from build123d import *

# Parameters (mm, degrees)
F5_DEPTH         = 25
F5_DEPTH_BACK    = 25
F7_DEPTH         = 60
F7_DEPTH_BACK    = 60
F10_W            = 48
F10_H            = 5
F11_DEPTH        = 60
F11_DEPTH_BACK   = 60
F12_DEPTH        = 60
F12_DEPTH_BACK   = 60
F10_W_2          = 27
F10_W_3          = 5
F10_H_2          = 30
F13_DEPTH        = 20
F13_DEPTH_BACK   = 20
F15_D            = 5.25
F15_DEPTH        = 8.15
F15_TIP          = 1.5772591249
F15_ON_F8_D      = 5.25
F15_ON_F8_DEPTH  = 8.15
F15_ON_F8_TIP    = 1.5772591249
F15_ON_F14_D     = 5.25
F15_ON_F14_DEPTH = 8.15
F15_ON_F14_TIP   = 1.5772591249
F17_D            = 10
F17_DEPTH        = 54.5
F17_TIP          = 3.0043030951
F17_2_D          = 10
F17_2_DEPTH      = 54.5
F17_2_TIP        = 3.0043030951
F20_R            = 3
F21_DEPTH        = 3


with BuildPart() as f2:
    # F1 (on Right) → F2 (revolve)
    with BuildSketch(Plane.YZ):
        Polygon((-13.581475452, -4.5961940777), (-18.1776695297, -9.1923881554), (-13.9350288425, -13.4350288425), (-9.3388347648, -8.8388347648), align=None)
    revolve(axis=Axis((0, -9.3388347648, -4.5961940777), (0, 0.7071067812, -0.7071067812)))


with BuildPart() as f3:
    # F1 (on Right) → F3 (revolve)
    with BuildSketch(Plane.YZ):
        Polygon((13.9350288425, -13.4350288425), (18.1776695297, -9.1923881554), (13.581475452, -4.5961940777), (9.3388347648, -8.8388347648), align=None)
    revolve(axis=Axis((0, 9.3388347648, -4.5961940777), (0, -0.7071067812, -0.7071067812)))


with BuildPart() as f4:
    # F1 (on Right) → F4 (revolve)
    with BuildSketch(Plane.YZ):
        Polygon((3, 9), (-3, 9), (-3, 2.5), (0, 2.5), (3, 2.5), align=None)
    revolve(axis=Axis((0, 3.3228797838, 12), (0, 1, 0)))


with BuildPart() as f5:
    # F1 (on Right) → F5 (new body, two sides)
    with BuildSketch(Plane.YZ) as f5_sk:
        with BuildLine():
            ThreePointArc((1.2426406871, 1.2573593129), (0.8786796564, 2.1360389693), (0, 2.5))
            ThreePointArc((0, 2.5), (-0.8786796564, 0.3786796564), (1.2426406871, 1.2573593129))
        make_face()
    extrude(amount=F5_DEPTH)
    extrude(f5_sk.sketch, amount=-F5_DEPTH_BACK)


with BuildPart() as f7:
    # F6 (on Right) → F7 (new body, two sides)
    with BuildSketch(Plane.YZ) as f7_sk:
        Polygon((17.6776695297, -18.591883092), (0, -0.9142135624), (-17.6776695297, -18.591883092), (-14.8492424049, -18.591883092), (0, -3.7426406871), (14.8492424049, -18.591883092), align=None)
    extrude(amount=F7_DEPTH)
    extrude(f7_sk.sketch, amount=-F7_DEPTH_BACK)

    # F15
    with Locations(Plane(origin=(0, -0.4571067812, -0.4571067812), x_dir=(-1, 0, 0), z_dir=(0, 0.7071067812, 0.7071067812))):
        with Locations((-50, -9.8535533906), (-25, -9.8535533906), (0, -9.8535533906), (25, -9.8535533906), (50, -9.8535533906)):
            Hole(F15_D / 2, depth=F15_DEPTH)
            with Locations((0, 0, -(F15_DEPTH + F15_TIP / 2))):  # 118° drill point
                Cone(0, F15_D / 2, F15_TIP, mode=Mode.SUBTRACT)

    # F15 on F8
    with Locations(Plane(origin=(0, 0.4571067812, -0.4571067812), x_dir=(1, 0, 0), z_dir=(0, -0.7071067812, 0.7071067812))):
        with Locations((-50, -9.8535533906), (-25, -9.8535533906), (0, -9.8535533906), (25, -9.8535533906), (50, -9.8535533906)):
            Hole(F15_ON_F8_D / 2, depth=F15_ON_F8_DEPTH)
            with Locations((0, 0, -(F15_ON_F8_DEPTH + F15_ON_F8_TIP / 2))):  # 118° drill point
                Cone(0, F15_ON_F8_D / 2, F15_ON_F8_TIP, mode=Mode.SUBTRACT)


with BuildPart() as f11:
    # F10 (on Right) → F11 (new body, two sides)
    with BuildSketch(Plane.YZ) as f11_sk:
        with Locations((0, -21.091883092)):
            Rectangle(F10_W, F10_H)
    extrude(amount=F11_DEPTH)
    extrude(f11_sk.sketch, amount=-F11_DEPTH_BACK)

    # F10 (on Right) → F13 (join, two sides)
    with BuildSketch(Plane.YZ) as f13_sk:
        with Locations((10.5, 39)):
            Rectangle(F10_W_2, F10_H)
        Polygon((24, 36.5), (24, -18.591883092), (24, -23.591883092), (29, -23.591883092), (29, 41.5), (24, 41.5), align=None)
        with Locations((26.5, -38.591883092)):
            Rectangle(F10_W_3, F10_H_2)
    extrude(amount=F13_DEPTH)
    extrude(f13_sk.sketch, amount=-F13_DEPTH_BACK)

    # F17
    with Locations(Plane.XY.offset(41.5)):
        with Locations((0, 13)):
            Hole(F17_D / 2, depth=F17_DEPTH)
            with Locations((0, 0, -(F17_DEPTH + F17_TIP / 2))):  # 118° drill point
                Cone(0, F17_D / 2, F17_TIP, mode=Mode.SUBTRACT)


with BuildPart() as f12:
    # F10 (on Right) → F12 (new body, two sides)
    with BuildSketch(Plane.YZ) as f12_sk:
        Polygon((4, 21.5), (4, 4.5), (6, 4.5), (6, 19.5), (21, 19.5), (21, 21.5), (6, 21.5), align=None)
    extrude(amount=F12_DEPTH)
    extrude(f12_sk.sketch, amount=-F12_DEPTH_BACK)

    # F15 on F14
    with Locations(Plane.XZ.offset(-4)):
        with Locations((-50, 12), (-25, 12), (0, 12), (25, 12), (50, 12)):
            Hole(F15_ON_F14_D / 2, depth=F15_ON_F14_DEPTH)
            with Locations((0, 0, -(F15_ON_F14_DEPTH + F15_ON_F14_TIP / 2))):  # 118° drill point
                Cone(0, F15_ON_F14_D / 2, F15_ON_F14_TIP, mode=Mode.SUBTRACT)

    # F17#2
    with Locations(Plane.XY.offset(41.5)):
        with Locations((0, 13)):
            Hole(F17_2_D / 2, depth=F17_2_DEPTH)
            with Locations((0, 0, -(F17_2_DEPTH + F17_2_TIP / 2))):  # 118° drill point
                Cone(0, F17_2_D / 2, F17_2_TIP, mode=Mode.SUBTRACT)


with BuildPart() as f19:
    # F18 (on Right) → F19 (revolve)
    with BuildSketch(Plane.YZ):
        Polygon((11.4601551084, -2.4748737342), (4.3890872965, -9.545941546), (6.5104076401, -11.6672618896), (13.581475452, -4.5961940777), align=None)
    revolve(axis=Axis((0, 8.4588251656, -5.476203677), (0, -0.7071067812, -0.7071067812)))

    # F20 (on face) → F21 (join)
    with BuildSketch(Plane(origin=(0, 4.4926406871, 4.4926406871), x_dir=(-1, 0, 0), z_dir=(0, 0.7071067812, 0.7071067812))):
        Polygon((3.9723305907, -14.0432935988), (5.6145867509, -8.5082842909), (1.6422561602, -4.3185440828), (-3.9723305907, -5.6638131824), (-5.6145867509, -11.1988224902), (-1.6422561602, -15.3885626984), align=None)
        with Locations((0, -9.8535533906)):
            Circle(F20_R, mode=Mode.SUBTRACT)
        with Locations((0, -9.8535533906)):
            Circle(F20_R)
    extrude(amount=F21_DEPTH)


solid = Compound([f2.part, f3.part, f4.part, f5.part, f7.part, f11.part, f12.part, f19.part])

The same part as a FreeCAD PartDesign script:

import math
import FreeCAD as App
import Part
import Sketcher

V = App.Vector
Q = App.Units.Quantity

doc = App.newDocument("Part")
params = doc.addObject("Spreadsheet::Sheet", "Params")
for row, (alias, value) in enumerate([
    ("sketch1_length", "6 mm"),
    ("sketch1_length2", "6.5 mm"),
    ("revolution_angle", "360 deg"),
    ("sketch2_length", "6 mm"),
    ("sketch2_length2", "6.5 mm"),
    ("revolution2_angle", "360 deg"),
    ("sketch3_width", "6 mm"),
    ("sketch3_height", "6.5 mm"),
    ("revolution3_angle", "360 deg"),
    ("pad1_length", "25 mm"),
    ("pad1_length2", "25 mm"),
    ("sketch5_length", "25 mm"),
    ("sketch5_length2", "21 mm"),
    ("pad2_length", "60 mm"),
    ("pad2_length2", "60 mm"),
    ("sketch6_diameter", "5.25 mm"),
    ("hole_diameter", "5.25 mm"),
    ("hole_depth", "8.15 mm"),
    ("sketch7_diameter", "5.25 mm"),
    ("hole2_diameter", "5.25 mm"),
    ("hole2_depth", "8.15 mm"),
    ("sketch8_width", "48 mm"),
    ("sketch8_height", "5 mm"),
    ("pad3_length", "60 mm"),
    ("pad3_length2", "60 mm"),
    ("sketch9_width", "27 mm"),
    ("sketch9_width2", "5 mm"),
    ("pad4_length", "20 mm"),
    ("pad4_length2", "20 mm"),
    ("sketch10_diameter", "10 mm"),
    ("hole3_diameter", "10 mm"),
    ("hole3_depth", "54.5 mm"),
    ("sketch11_width", "2 mm"),
    ("sketch11_width2", "15 mm"),
    ("pad5_length", "60 mm"),
    ("pad5_length2", "60 mm"),
    ("sketch12_diameter", "5.25 mm"),
    ("hole4_diameter", "5.25 mm"),
    ("hole4_depth", "8.15 mm"),
    ("sketch13_diameter", "10 mm"),
    ("hole5_diameter", "10 mm"),
    ("hole5_depth", "54.5 mm"),
    ("sketch14_length", "10 mm"),
    ("sketch14_length2", "3 mm"),
    ("revolution4_angle", "360 deg"),
    ("pad6_length", "3 mm"),
], start=1):
    params.set(f"A{row}", alias)
    params.set(f"B{row}", "=" + value)
    params.setAlias(f"B{row}", alias)

body = doc.addObject("PartDesign::Body", "Body")

sketch1 = body.newObject("Sketcher::SketchObject", "Sketch")
sketch1.AttachmentSupport = (doc.getObject("YZ_Plane"), [""])
sketch1.MapMode = "FlatFace"
sketch1.addGeometry([
    Part.LineSegment(V(-14, -5, 0), V(-18, -9, 0)),
    Part.LineSegment(V(-18, -9, 0), V(-14, -13, 0)),
    Part.LineSegment(V(-14, -13, 0), V(-9, -9, 0)),
    Part.LineSegment(V(-9, -9, 0), V(-14, -5, 0)),
], False)
sketch1.addGeometry(Part.LineSegment(V(-11, -2, 0), V(-7, -7, 0)), True)
sketch1.addConstraint([
    Sketcher.Constraint("Coincident", 0, 2, 1, 1),
    Sketcher.Constraint("Coincident", 1, 2, 2, 1),
    Sketcher.Constraint("Coincident", 2, 2, 3, 1),
    Sketcher.Constraint("Coincident", 3, 2, 0, 1),
    Sketcher.Constraint("Perpendicular", 0, 1),
    Sketcher.Constraint("Perpendicular", 1, 2),
    Sketcher.Constraint("Perpendicular", 2, 3),
    Sketcher.Constraint("Parallel", 3, 4),
    Sketcher.Constraint("Equal", 3, 4),
    Sketcher.Constraint("Angle", 0, Q("-135 deg")),
    Sketcher.Constraint("Distance", 1, Q("6 mm")),
    Sketcher.Constraint("Distance", 0, Q("6.5 mm")),
    Sketcher.Constraint("DistanceX", 0, 2, -1, 1, Q("18.17767 mm")),
    Sketcher.Constraint("DistanceY", 0, 2, -1, 1, Q("9.192388 mm")),
    Sketcher.Constraint("DistanceX", 3, 2, 4, 1, Q("2.12132 mm")),
    Sketcher.Constraint("DistanceY", 3, 2, 4, 1, Q("2.12132 mm")),
])
sketch1.setExpression("Constraints[10]", "Params.sketch1_length")
sketch1.setExpression("Constraints[11]", "Params.sketch1_length2")
revolution = body.newObject("PartDesign::Revolution", "Revolution")
revolution.Profile = sketch1
revolution.ReferenceAxis = (sketch1, ["Axis0"])
revolution.setExpression("Angle", "Params.revolution_angle")
body2 = doc.addObject("PartDesign::Body", "Body001")

sketch2 = body2.newObject("Sketcher::SketchObject", "Sketch001")
sketch2.AttachmentSupport = (doc.getObject("YZ_Plane001"), [""])
sketch2.MapMode = "FlatFace"
sketch2.addGeometry([
    Part.LineSegment(V(14, -13, 0), V(18, -9, 0)),
    Part.LineSegment(V(18, -9, 0), V(14, -5, 0)),
    Part.LineSegment(V(14, -5, 0), V(9, -9, 0)),
    Part.LineSegment(V(9, -9, 0), V(14, -13, 0)),
], False)
sketch2.addGeometry(Part.LineSegment(V(11, -2, 0), V(7, -7, 0)), True)
sketch2.addConstraint([
    Sketcher.Constraint("Coincident", 0, 2, 1, 1),
    Sketcher.Constraint("Coincident", 1, 2, 2, 1),
    Sketcher.Constraint("Coincident", 2, 2, 3, 1),
    Sketcher.Constraint("Coincident", 3, 2, 0, 1),
    Sketcher.Constraint("Perpendicular", 0, 1),
    Sketcher.Constraint("Perpendicular", 1, 2),
    Sketcher.Constraint("Perpendicular", 2, 3),
    Sketcher.Constraint("Perpendicular", 3, 4),
    Sketcher.Constraint("Equal", 2, 4),
    Sketcher.Constraint("Angle", 0, Q("45 deg")),
    Sketcher.Constraint("Distance", 0, Q("6 mm")),
    Sketcher.Constraint("Distance", 1, Q("6.5 mm")),
    Sketcher.Constraint("DistanceX", -1, 1, 0, 2, Q("18.17767 mm")),
    Sketcher.Constraint("DistanceY", 0, 2, -1, 1, Q("9.192388 mm")),
    Sketcher.Constraint("DistanceX", 4, 1, 1, 2, Q("2.12132 mm")),
    Sketcher.Constraint("DistanceY", 1, 2, 4, 1, Q("2.12132 mm")),
])
sketch2.setExpression("Constraints[10]", "Params.sketch2_length")
sketch2.setExpression("Constraints[11]", "Params.sketch2_length2")
revolution2 = body2.newObject("PartDesign::Revolution", "Revolution001")
revolution2.Profile = sketch2
revolution2.ReferenceAxis = (sketch2, ["Axis0"])
revolution2.setExpression("Angle", "Params.revolution2_angle")
body3 = doc.addObject("PartDesign::Body", "Body002")

sketch3 = body3.newObject("Sketcher::SketchObject", "Sketch002")
sketch3.AttachmentSupport = (doc.getObject("YZ_Plane002"), [""])
sketch3.MapMode = "FlatFace"
sketch3.addGeometry([
    Part.LineSegment(V(3, 9, 0), V(-3, 9, 0)),
    Part.LineSegment(V(-3, 9, 0), V(-3, 2, 0)),
    Part.LineSegment(V(-3, 2, 0), V(3, 2, 0)),
    Part.LineSegment(V(3, 2, 0), V(3, 9, 0)),
], False)
sketch3.addGeometry(Part.LineSegment(V(-3, 12, 0), V(3, 12, 0)), True)
sketch3.addConstraint([
    Sketcher.Constraint("Coincident", 0, 2, 1, 1),
    Sketcher.Constraint("Coincident", 1, 2, 2, 1),
    Sketcher.Constraint("Coincident", 2, 2, 3, 1),
    Sketcher.Constraint("Coincident", 3, 2, 0, 1),
    Sketcher.Constraint("Horizontal", 0),
    Sketcher.Constraint("Vertical", 1),
    Sketcher.Constraint("Horizontal", 2),
    Sketcher.Constraint("Vertical", 3),
    Sketcher.Constraint("Horizontal", 4),
    Sketcher.Constraint("Vertical", 1, 2, 4, 1),
    Sketcher.Constraint("Vertical", 3, 2, 4, 2),
    Sketcher.Constraint("DistanceX", 0, 2, 0, 1, Q("6 mm")),
    Sketcher.Constraint("DistanceY", 1, 2, 1, 1, Q("6.5 mm")),
    Sketcher.Constraint("DistanceX", 0, 2, -1, 1, Q("3 mm")),
    Sketcher.Constraint("DistanceY", -1, 1, 0, 2, Q("9 mm")),
    Sketcher.Constraint("DistanceY", -1, 1, 4, 1, Q("12 mm")),
])
sketch3.setExpression("Constraints[11]", "Params.sketch3_width")
sketch3.setExpression("Constraints[12]", "Params.sketch3_height")
revolution3 = body3.newObject("PartDesign::Revolution", "Revolution002")
revolution3.Profile = sketch3
revolution3.ReferenceAxis = (sketch3, ["Axis0"])
revolution3.setExpression("Angle", "Params.revolution3_angle")
body4 = doc.addObject("PartDesign::Body", "Body003")

sketch4 = body4.newObject("Sketcher::SketchObject", "Sketch003")
sketch4.AttachmentSupport = (doc.getObject("YZ_Plane003"), [""])
sketch4.MapMode = "FlatFace"
sketch4.addGeometry([
    Part.ArcOfCircle(Part.Circle(V(0, 1.3, 0), V(0, 0, 1), 1.2), math.radians(0), math.radians(90)),
    Part.ArcOfCircle(Part.Circle(V(0, 1.3, 0), V(0, 0, 1), 1.2), math.radians(90), math.radians(360)),
], False)
sketch4.addConstraint([
    Sketcher.Constraint("Tangent", 0, 1, 1, 2),
    Sketcher.Constraint("Coincident", 1, 1, 0, 2),
    Sketcher.Constraint("PointOnObject", 0, 3, -2),
    Sketcher.Constraint("PointOnObject", 1, 1, -2),
    Sketcher.Constraint("Horizontal", 1, 3, 0, 1),
    Sketcher.Constraint("DistanceY", -1, 1, 1, 1, Q("2.5 mm")),
    Sketcher.Constraint("Radius", 0, Q("1.242641 mm")),
])
pad1 = body4.newObject("PartDesign::Pad", "Pad")
pad1.Profile = sketch4
pad1.Type = "TwoLengths"
pad1.setExpression("Length", "Params.pad1_length")
pad1.setExpression("Length2", "Params.pad1_length2")
body5 = doc.addObject("PartDesign::Body", "Body004")

sketch5 = body5.newObject("Sketcher::SketchObject", "Sketch004")
sketch5.AttachmentSupport = (doc.getObject("YZ_Plane004"), [""])
sketch5.MapMode = "FlatFace"
sketch5.addGeometry([
    Part.LineSegment(V(17.7, -18.6, 0), V(0, -0.9, 0)),
    Part.LineSegment(V(0, -0.9, 0), V(-17.7, -18.6, 0)),
    Part.LineSegment(V(-17.7, -18.6, 0), V(-14.8, -18.6, 0)),
    Part.LineSegment(V(-14.8, -18.6, 0), V(0, -3.7, 0)),
    Part.LineSegment(V(0, -3.7, 0), V(14.8, -18.6, 0)),
    Part.LineSegment(V(14.8, -18.6, 0), V(17.7, -18.6, 0)),
], False)
sketch5.addConstraint([
    Sketcher.Constraint("Coincident", 0, 2, 1, 1),
    Sketcher.Constraint("Coincident", 1, 2, 2, 1),
    Sketcher.Constraint("Coincident", 2, 2, 3, 1),
    Sketcher.Constraint("Coincident", 3, 2, 4, 1),
    Sketcher.Constraint("Coincident", 4, 2, 5, 1),
    Sketcher.Constraint("Coincident", 5, 2, 0, 1),
    Sketcher.Constraint("Horizontal", 2),
    Sketcher.Constraint("Horizontal", 5),
    Sketcher.Constraint("Symmetric", 2, 2, 4, 2, -2),
    Sketcher.Constraint("PointOnObject", 0, 2, -2),
    Sketcher.Constraint("PointOnObject", 3, 2, -2),
    Sketcher.Constraint("Perpendicular", 0, 1),
    Sketcher.Constraint("Parallel", 1, 3),
    Sketcher.Constraint("Perpendicular", 3, 4),
    Sketcher.Constraint("Distance", 0, Q("25 mm")),
    Sketcher.Constraint("Distance", 3, Q("21 mm")),
    Sketcher.Constraint("DistanceY", 3, 2, -1, 1, Q("3.742641 mm")),
])
sketch5.setExpression("Constraints[14]", "Params.sketch5_length")
sketch5.setExpression("Constraints[15]", "Params.sketch5_length2")
pad2 = body5.newObject("PartDesign::Pad", "Pad001")
pad2.Profile = sketch5
pad2.Type = "TwoLengths"
pad2.setExpression("Length", "Params.pad2_length")
pad2.setExpression("Length2", "Params.pad2_length2")

sketch6 = body5.newObject("Sketcher::SketchObject", "Sketch005")
sketch6.Placement = App.Placement(V(0, -0.457107, -0.457107), App.Rotation(V(-1, 0, 0), V(0, -0.707106781, 0.707106781), V(0, 0.707106781, 0.707106781), "ZXY"))
sketch6.addGeometry([
    Part.Circle(V(-50, -9.9, 0), V(0, 0, 1), 2.6),
    Part.Circle(V(-25, -9.9, 0), V(0, 0, 1), 2.6),
    Part.Circle(V(0, -9.9, 0), V(0, 0, 1), 2.6),
    Part.Circle(V(25, -9.9, 0), V(0, 0, 1), 2.6),
    Part.Circle(V(50, -9.9, 0), V(0, 0, 1), 2.6),
], False)
sketch6.addConstraint([
    Sketcher.Constraint("Equal", 0, 1),
    Sketcher.Constraint("Equal", 1, 2),
    Sketcher.Constraint("Equal", 2, 3),
    Sketcher.Constraint("Equal", 3, 4),
    Sketcher.Constraint("Symmetric", 1, 3, 3, 3, -2),
    Sketcher.Constraint("Symmetric", 0, 3, 4, 3, -2),
    Sketcher.Constraint("PointOnObject", 2, 3, -2),
    Sketcher.Constraint("Horizontal", 0, 3, 1, 3),
    Sketcher.Constraint("Horizontal", 1, 3, 2, 3),
    Sketcher.Constraint("Diameter", 0, Q("5.25 mm")),
    Sketcher.Constraint("DistanceX", 0, 3, -1, 1, Q("50 mm")),
    Sketcher.Constraint("DistanceX", 1, 3, -1, 1, Q("25 mm")),
    Sketcher.Constraint("DistanceY", 0, 3, -1, 1, Q("9.853553 mm")),
])
sketch6.setExpression("Constraints[9]", "Params.sketch6_diameter")
doc.recompute()
hole = body5.newObject("PartDesign::Hole", "Hole")
hole.Profile = sketch6
hole.ThreadType = "None"
hole.setExpression("Diameter", "Params.hole_diameter")
hole.DepthType = "Dimension"
hole.setExpression("Depth", "Params.hole_depth")
hole.DrillPoint = "Angled"
hole.DrillPointAngle = 118

sketch7 = body5.newObject("Sketcher::SketchObject", "Sketch006")
sketch7.Placement = App.Placement(V(0, 0.457107, -0.457107), App.Rotation(V(1, 0, 0), V(0, 0.707106781, 0.707106781), V(0, -0.707106781, 0.707106781), "ZXY"))
sketch7.addGeometry([
    Part.Circle(V(-50, -9.9, 0), V(0, 0, 1), 2.6),
    Part.Circle(V(-25, -9.9, 0), V(0, 0, 1), 2.6),
    Part.Circle(V(0, -9.9, 0), V(0, 0, 1), 2.6),
    Part.Circle(V(25, -9.9, 0), V(0, 0, 1), 2.6),
    Part.Circle(V(50, -9.9, 0), V(0, 0, 1), 2.6),
], False)
sketch7.addConstraint([
    Sketcher.Constraint("Equal", 0, 1),
    Sketcher.Constraint("Equal", 1, 2),
    Sketcher.Constraint("Equal", 2, 3),
    Sketcher.Constraint("Equal", 3, 4),
    Sketcher.Constraint("Symmetric", 1, 3, 3, 3, -2),
    Sketcher.Constraint("Symmetric", 0, 3, 4, 3, -2),
    Sketcher.Constraint("PointOnObject", 2, 3, -2),
    Sketcher.Constraint("Horizontal", 0, 3, 1, 3),
    Sketcher.Constraint("Horizontal", 1, 3, 2, 3),
    Sketcher.Constraint("Diameter", 0, Q("5.25 mm")),
    Sketcher.Constraint("DistanceX", 0, 3, -1, 1, Q("50 mm")),
    Sketcher.Constraint("DistanceX", 1, 3, -1, 1, Q("25 mm")),
    Sketcher.Constraint("DistanceY", 0, 3, -1, 1, Q("9.853553 mm")),
])
sketch7.setExpression("Constraints[9]", "Params.sketch7_diameter")
doc.recompute()
hole2 = body5.newObject("PartDesign::Hole", "Hole001")
hole2.Profile = sketch7
hole2.ThreadType = "None"
hole2.setExpression("Diameter", "Params.hole2_diameter")
hole2.DepthType = "Dimension"
hole2.setExpression("Depth", "Params.hole2_depth")
hole2.DrillPoint = "Angled"
hole2.DrillPointAngle = 118
body6 = doc.addObject("PartDesign::Body", "Body005")

sketch8 = body6.newObject("Sketcher::SketchObject", "Sketch007")
sketch8.AttachmentSupport = (doc.getObject("YZ_Plane005"), [""])
sketch8.MapMode = "FlatFace"
sketch8.addGeometry([
    Part.LineSegment(V(-24, -19, 0), V(-24, -24, 0)),
    Part.LineSegment(V(-24, -24, 0), V(24, -24, 0)),
    Part.LineSegment(V(24, -24, 0), V(24, -19, 0)),
    Part.LineSegment(V(24, -19, 0), V(-24, -19, 0)),
], False)
sketch8.addConstraint([
    Sketcher.Constraint("Coincident", 0, 2, 1, 1),
    Sketcher.Constraint("Coincident", 1, 2, 2, 1),
    Sketcher.Constraint("Coincident", 2, 2, 3, 1),
    Sketcher.Constraint("Coincident", 3, 2, 0, 1),
    Sketcher.Constraint("Vertical", 0),
    Sketcher.Constraint("Horizontal", 1),
    Sketcher.Constraint("Vertical", 2),
    Sketcher.Constraint("Horizontal", 3),
    Sketcher.Constraint("DistanceX", 1, 1, 1, 2, Q("48 mm")),
    Sketcher.Constraint("DistanceY", 0, 2, 0, 1, Q("5 mm")),
    Sketcher.Constraint("DistanceX", 0, 2, -1, 1, Q("24 mm")),
    Sketcher.Constraint("DistanceY", 0, 2, -1, 1, Q("23.591883 mm")),
])
sketch8.setExpression("Constraints[8]", "Params.sketch8_width")
sketch8.setExpression("Constraints[9]", "Params.sketch8_height")
pad3 = body6.newObject("PartDesign::Pad", "Pad002")
pad3.Profile = sketch8
pad3.Type = "TwoLengths"
pad3.setExpression("Length", "Params.pad3_length")
pad3.setExpression("Length2", "Params.pad3_length2")

sketch9 = body6.newObject("Sketcher::SketchObject", "Sketch008")
sketch9.AttachmentSupport = (doc.getObject("YZ_Plane005"), [""])
sketch9.MapMode = "FlatFace"
sketch9.addGeometry([
    Part.LineSegment(V(-3, 42, 0), V(-3, 36, 0)),
    Part.LineSegment(V(-3, 36, 0), V(24, 36, 0)),
    Part.LineSegment(V(24, 36, 0), V(24, -54, 0)),
    Part.LineSegment(V(24, -54, 0), V(29, -54, 0)),
    Part.LineSegment(V(29, -54, 0), V(29, 42, 0)),
    Part.LineSegment(V(29, 42, 0), V(-3, 42, 0)),
], False)
sketch9.addConstraint([
    Sketcher.Constraint("Coincident", 0, 2, 1, 1),
    Sketcher.Constraint("Coincident", 1, 2, 2, 1),
    Sketcher.Constraint("Coincident", 2, 2, 3, 1),
    Sketcher.Constraint("Coincident", 3, 2, 4, 1),
    Sketcher.Constraint("Coincident", 4, 2, 5, 1),
    Sketcher.Constraint("Coincident", 5, 2, 0, 1),
    Sketcher.Constraint("Vertical", 0),
    Sketcher.Constraint("Horizontal", 1),
    Sketcher.Constraint("Vertical", 2),
    Sketcher.Constraint("Horizontal", 3),
    Sketcher.Constraint("Vertical", 4),
    Sketcher.Constraint("Horizontal", 5),
    Sketcher.Constraint("Equal", 3, 0),
    Sketcher.Constraint("DistanceX", 1, 1, 1, 2, Q("27 mm")),
    Sketcher.Constraint("DistanceX", 3, 1, 3, 2, Q("5 mm")),
    Sketcher.Constraint("DistanceX", 0, 2, -1, 1, Q("3 mm")),
    Sketcher.Constraint("DistanceY", -1, 1, 0, 2, Q("36.5 mm")),
    Sketcher.Constraint("DistanceY", 2, 2, 2, 1, Q("90.091883 mm")),
])
sketch9.setExpression("Constraints[13]", "Params.sketch9_width")
sketch9.setExpression("Constraints[14]", "Params.sketch9_width2")
pad4 = body6.newObject("PartDesign::Pad", "Pad003")
pad4.Profile = sketch9
pad4.Type = "TwoLengths"
pad4.setExpression("Length", "Params.pad4_length")
pad4.setExpression("Length2", "Params.pad4_length2")

sketch10 = body6.newObject("Sketcher::SketchObject", "Sketch009")
sketch10.AttachmentSupport = (doc.getObject("XY_Plane005"), [""])
sketch10.MapMode = "FlatFace"
sketch10.AttachmentOffset = App.Placement(V(0, 0, 41.5), App.Rotation())
sketch10.addGeometry(Part.Circle(V(0, 13, 0), V(0, 0, 1), 5), False)
sketch10.addConstraint([
    Sketcher.Constraint("PointOnObject", 0, 3, -2),
    Sketcher.Constraint("Diameter", 0, Q("10 mm")),
    Sketcher.Constraint("DistanceY", -1, 1, 0, 3, Q("13 mm")),
])
sketch10.setExpression("Constraints[1]", "Params.sketch10_diameter")
doc.recompute()
hole3 = body6.newObject("PartDesign::Hole", "Hole002")
hole3.Profile = sketch10
hole3.ThreadType = "None"
hole3.setExpression("Diameter", "Params.hole3_diameter")
hole3.DepthType = "Dimension"
hole3.setExpression("Depth", "Params.hole3_depth")
hole3.DrillPoint = "Angled"
hole3.DrillPointAngle = 118
body7 = doc.addObject("PartDesign::Body", "Body006")

sketch11 = body7.newObject("Sketcher::SketchObject", "Sketch010")
sketch11.AttachmentSupport = (doc.getObject("YZ_Plane006"), [""])
sketch11.MapMode = "FlatFace"
sketch11.addGeometry([
    Part.LineSegment(V(4, 21.5, 0), V(4, 4.5, 0)),
    Part.LineSegment(V(4, 4.5, 0), V(6, 4.5, 0)),
    Part.LineSegment(V(6, 4.5, 0), V(6, 19.5, 0)),
    Part.LineSegment(V(6, 19.5, 0), V(21, 19.5, 0)),
    Part.LineSegment(V(21, 19.5, 0), V(21, 21.5, 0)),
    Part.LineSegment(V(21, 21.5, 0), V(4, 21.5, 0)),
], False)
sketch11.addConstraint([
    Sketcher.Constraint("Coincident", 0, 2, 1, 1),
    Sketcher.Constraint("Coincident", 1, 2, 2, 1),
    Sketcher.Constraint("Coincident", 2, 2, 3, 1),
    Sketcher.Constraint("Coincident", 3, 2, 4, 1),
    Sketcher.Constraint("Coincident", 4, 2, 5, 1),
    Sketcher.Constraint("Coincident", 5, 2, 0, 1),
    Sketcher.Constraint("Vertical", 0),
    Sketcher.Constraint("Horizontal", 1),
    Sketcher.Constraint("Vertical", 2),
    Sketcher.Constraint("Horizontal", 3),
    Sketcher.Constraint("Vertical", 4),
    Sketcher.Constraint("Horizontal", 5),
    Sketcher.Constraint("Equal", 5, 0),
    Sketcher.Constraint("Equal", 3, 2),
    Sketcher.Constraint("DistanceX", 1, 1, 1, 2, Q("2 mm")),
    Sketcher.Constraint("DistanceX", 3, 1, 3, 2, Q("15 mm")),
    Sketcher.Constraint("DistanceX", -1, 1, 0, 2, Q("4 mm")),
    Sketcher.Constraint("DistanceY", -1, 1, 0, 2, Q("4.5 mm")),
])
sketch11.setExpression("Constraints[14]", "Params.sketch11_width")
sketch11.setExpression("Constraints[15]", "Params.sketch11_width2")
pad5 = body7.newObject("PartDesign::Pad", "Pad004")
pad5.Profile = sketch11
pad5.Type = "TwoLengths"
pad5.setExpression("Length", "Params.pad5_length")
pad5.setExpression("Length2", "Params.pad5_length2")

sketch12 = body7.newObject("Sketcher::SketchObject", "Sketch011")
sketch12.AttachmentSupport = (doc.getObject("XZ_Plane006"), [""])
sketch12.MapMode = "FlatFace"
sketch12.AttachmentOffset = App.Placement(V(0, 0, -4), App.Rotation())
sketch12.addGeometry([
    Part.Circle(V(-50, 12, 0), V(0, 0, 1), 2.6),
    Part.Circle(V(-25, 12, 0), V(0, 0, 1), 2.6),
    Part.Circle(V(0, 12, 0), V(0, 0, 1), 2.6),
    Part.Circle(V(25, 12, 0), V(0, 0, 1), 2.6),
    Part.Circle(V(50, 12, 0), V(0, 0, 1), 2.6),
], False)
sketch12.addConstraint([
    Sketcher.Constraint("Equal", 0, 1),
    Sketcher.Constraint("Equal", 1, 2),
    Sketcher.Constraint("Equal", 2, 3),
    Sketcher.Constraint("Equal", 3, 4),
    Sketcher.Constraint("Symmetric", 1, 3, 3, 3, -2),
    Sketcher.Constraint("Symmetric", 0, 3, 4, 3, -2),
    Sketcher.Constraint("PointOnObject", 2, 3, -2),
    Sketcher.Constraint("Horizontal", 0, 3, 1, 3),
    Sketcher.Constraint("Horizontal", 1, 3, 2, 3),
    Sketcher.Constraint("Diameter", 0, Q("5.25 mm")),
    Sketcher.Constraint("DistanceX", 0, 3, -1, 1, Q("50 mm")),
    Sketcher.Constraint("DistanceY", -1, 1, 0, 3, Q("12 mm")),
    Sketcher.Constraint("DistanceX", 1, 3, -1, 1, Q("25 mm")),
])
sketch12.setExpression("Constraints[9]", "Params.sketch12_diameter")
doc.recompute()
hole4 = body7.newObject("PartDesign::Hole", "Hole003")
hole4.Profile = sketch12
hole4.ThreadType = "None"
hole4.setExpression("Diameter", "Params.hole4_diameter")
hole4.DepthType = "Dimension"
hole4.setExpression("Depth", "Params.hole4_depth")
hole4.DrillPoint = "Angled"
hole4.DrillPointAngle = 118

sketch13 = body7.newObject("Sketcher::SketchObject", "Sketch012")
sketch13.AttachmentSupport = (doc.getObject("XY_Plane006"), [""])
sketch13.MapMode = "FlatFace"
sketch13.AttachmentOffset = App.Placement(V(0, 0, 41.5), App.Rotation())
sketch13.addGeometry(Part.Circle(V(0, 13, 0), V(0, 0, 1), 5), False)
sketch13.addConstraint([
    Sketcher.Constraint("PointOnObject", 0, 3, -2),
    Sketcher.Constraint("Diameter", 0, Q("10 mm")),
    Sketcher.Constraint("DistanceY", -1, 1, 0, 3, Q("13 mm")),
])
sketch13.setExpression("Constraints[1]", "Params.sketch13_diameter")
doc.recompute()
hole5 = body7.newObject("PartDesign::Hole", "Hole004")
hole5.Profile = sketch13
hole5.ThreadType = "None"
hole5.setExpression("Diameter", "Params.hole5_diameter")
hole5.DepthType = "Dimension"
hole5.setExpression("Depth", "Params.hole5_depth")
hole5.DrillPoint = "Angled"
hole5.DrillPointAngle = 118
body8 = doc.addObject("PartDesign::Body", "Body007")

sketch14 = body8.newObject("Sketcher::SketchObject", "Sketch013")
sketch14.AttachmentSupport = (doc.getObject("YZ_Plane007"), [""])
sketch14.MapMode = "FlatFace"
sketch14.addGeometry([
    Part.LineSegment(V(11.5, -2.5, 0), V(4.4, -9.5, 0)),
    Part.LineSegment(V(4.4, -9.5, 0), V(6.5, -11.7, 0)),
    Part.LineSegment(V(6.5, -11.7, 0), V(13.6, -4.6, 0)),
    Part.LineSegment(V(13.6, -4.6, 0), V(11.5, -2.5, 0)),
], False)
sketch14.addGeometry(Part.LineSegment(V(11.5, -2.5, 0), V(4.4, -9.5, 0)), True)
sketch14.addConstraint([
    Sketcher.Constraint("Coincident", 0, 2, 1, 1),
    Sketcher.Constraint("Coincident", 1, 2, 2, 1),
    Sketcher.Constraint("Coincident", 2, 2, 3, 1),
    Sketcher.Constraint("Coincident", 3, 2, 0, 1),
    Sketcher.Constraint("Coincident", 4, 1, 3, 2),
    Sketcher.Constraint("Coincident", 4, 2, 0, 2),
    Sketcher.Constraint("Perpendicular", 0, 1),
    Sketcher.Constraint("Perpendicular", 1, 2),
    Sketcher.Constraint("Perpendicular", 2, 3),
    Sketcher.Constraint("Angle", 0, Q("-135 deg")),
    Sketcher.Constraint("Distance", 0, Q("10 mm")),
    Sketcher.Constraint("Distance", 1, Q("3 mm")),
    Sketcher.Constraint("DistanceY", 0, 2, -1, 1, Q("9.545942 mm")),
    Sketcher.Constraint("DistanceX", -1, 1, 0, 2, Q("4.389087 mm")),
])
sketch14.setExpression("Constraints[10]", "Params.sketch14_length")
sketch14.setExpression("Constraints[11]", "Params.sketch14_length2")
revolution4 = body8.newObject("PartDesign::Revolution", "Revolution003")
revolution4.Profile = sketch14
revolution4.ReferenceAxis = (sketch14, ["Axis0"])
revolution4.setExpression("Angle", "Params.revolution4_angle")

sketch15 = body8.newObject("Sketcher::SketchObject", "Sketch014")
sketch15.Placement = App.Placement(V(0, 4.492641, 4.492641), App.Rotation(V(-1, 0, 0), V(0, -0.707106781, 0.707106781), V(0, 0.707106781, 0.707106781), "ZXY"))
sketch15.addGeometry([
    Part.LineSegment(V(4, -14, 0), V(6, -9, 0)),
    Part.LineSegment(V(6, -9, 0), V(2, -4, 0)),
    Part.LineSegment(V(2, -4, 0), V(-4, -6, 0)),
    Part.LineSegment(V(-4, -6, 0), V(-6, -11, 0)),
    Part.LineSegment(V(-6, -11, 0), V(-2, -15, 0)),
    Part.LineSegment(V(-2, -15, 0), V(4, -14, 0)),
], False)
sketch15.addConstraint([
    Sketcher.Constraint("Coincident", 0, 2, 1, 1),
    Sketcher.Constraint("Coincident", 1, 2, 2, 1),
    Sketcher.Constraint("Coincident", 2, 2, 3, 1),
    Sketcher.Constraint("Coincident", 3, 2, 4, 1),
    Sketcher.Constraint("Coincident", 4, 2, 5, 1),
    Sketcher.Constraint("Coincident", 5, 2, 0, 1),
    Sketcher.Constraint("Parallel", 0, 3),
    Sketcher.Constraint("Parallel", 1, 4),
    Sketcher.Constraint("Parallel", 2, 5),
    Sketcher.Constraint("Equal", 0, 1),
    Sketcher.Constraint("Equal", 1, 2),
    Sketcher.Constraint("Equal", 2, 3),
    Sketcher.Constraint("DistanceX", 2, 2, -1, 1, Q("3.972331 mm")),
    Sketcher.Constraint("DistanceX", -1, 1, 5, 2, Q("3.972331 mm")),
    Sketcher.Constraint("DistanceX", 1, 2, 0, 2, Q("3.972331 mm")),
    Sketcher.Constraint("DistanceY", 0, 2, 1, 2, Q("4.18974 mm")),
    Sketcher.Constraint("DistanceY", 2, 2, 1, 2, Q("1.345269 mm")),
    Sketcher.Constraint("DistanceY", 0, 2, -1, 1, Q("8.508284 mm")),
])
pad6 = body8.newObject("PartDesign::Pad", "Pad005")
pad6.Profile = sketch15
pad6.setExpression("Length", "Params.pad6_length")

doc.recompute()
